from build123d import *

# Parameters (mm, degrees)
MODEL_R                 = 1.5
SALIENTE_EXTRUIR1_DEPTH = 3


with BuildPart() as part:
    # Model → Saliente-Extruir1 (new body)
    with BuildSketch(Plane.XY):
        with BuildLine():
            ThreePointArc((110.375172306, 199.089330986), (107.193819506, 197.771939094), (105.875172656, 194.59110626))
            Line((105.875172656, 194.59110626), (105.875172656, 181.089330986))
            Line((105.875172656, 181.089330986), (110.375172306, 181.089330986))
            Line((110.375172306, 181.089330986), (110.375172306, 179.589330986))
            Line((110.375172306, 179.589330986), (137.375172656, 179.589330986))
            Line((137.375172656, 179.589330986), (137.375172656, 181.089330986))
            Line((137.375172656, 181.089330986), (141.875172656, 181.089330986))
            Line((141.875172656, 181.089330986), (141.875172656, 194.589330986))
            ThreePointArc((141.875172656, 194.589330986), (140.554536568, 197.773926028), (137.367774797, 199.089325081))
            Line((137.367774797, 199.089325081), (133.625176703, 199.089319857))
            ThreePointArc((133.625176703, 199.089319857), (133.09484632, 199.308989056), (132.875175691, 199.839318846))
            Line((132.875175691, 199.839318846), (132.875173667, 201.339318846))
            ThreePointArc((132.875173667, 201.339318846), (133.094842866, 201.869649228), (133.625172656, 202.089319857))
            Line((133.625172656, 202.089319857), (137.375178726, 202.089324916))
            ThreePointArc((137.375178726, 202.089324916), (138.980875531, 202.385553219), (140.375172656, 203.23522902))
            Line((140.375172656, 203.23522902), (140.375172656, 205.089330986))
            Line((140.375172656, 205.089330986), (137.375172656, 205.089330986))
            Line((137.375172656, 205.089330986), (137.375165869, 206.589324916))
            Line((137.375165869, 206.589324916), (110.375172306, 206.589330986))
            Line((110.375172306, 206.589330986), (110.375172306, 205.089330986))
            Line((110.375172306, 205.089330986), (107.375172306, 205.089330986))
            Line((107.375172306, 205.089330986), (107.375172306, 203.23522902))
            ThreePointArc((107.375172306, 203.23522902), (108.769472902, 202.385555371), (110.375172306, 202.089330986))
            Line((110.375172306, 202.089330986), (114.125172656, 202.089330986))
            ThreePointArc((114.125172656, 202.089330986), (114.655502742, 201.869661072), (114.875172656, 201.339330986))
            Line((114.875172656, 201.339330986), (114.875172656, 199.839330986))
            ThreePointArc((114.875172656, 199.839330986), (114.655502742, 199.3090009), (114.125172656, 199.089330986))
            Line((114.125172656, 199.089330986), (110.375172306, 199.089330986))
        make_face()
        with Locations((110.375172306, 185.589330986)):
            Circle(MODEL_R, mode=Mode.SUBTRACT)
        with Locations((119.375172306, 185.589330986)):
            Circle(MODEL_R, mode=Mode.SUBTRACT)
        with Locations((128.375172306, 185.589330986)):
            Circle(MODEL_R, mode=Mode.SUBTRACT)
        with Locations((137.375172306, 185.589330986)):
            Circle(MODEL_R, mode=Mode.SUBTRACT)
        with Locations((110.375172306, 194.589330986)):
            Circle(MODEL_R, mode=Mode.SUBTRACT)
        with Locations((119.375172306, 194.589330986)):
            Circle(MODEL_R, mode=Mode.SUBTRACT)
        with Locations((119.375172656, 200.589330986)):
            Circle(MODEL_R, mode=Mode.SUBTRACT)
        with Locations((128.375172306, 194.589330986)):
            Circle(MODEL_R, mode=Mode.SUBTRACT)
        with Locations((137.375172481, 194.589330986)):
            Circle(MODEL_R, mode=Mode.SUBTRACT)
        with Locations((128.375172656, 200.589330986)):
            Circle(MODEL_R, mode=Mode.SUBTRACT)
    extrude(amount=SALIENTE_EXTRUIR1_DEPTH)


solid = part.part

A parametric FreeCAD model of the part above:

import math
import FreeCAD as App
import Part
import Sketcher
from FreeCAD import Vector

doc = App.newDocument("Part")
body = doc.addObject("PartDesign::Body", "Body")

sketch1 = doc.addObject("Sketcher::SketchObject", "Sketch")
body.addObject(sketch1)
sketch1.AttachmentSupport = (doc.XY_Plane, [""])
sketch1.MapMode = "FlatFace"
sketch1.addGeometry([
    Part.ArcOfCircle(Part.Circle(Vector(110.375172, 194.589331, 0), Vector(0, 0, 1), 4.5), math.radians(90), math.radians(179.977397)),
    Part.LineSegment(Vector(105.875173, 194.591106, 0), Vector(105.875173, 181.089331, 0)),
    Part.LineSegment(Vector(105.875173, 181.089331, 0), Vector(110.375172, 181.089331, 0)),
    Part.LineSegment(Vector(110.375172, 181.089331, 0), Vector(110.375172, 179.589331, 0)),
    Part.LineSegment(Vector(110.375172, 179.589331, 0), Vector(137.375173, 179.589331, 0)),
    Part.LineSegment(Vector(137.375173, 179.589331, 0), Vector(137.375173, 181.089331, 0)),
    Part.LineSegment(Vector(137.375173, 181.089331, 0), Vector(141.875173, 181.089331, 0)),
    Part.LineSegment(Vector(141.875173, 181.089331, 0), Vector(141.875173, 194.589331, 0)),
    Part.ArcOfCircle(Part.Circle(Vector(137.375172, 194.589331, 0), Vector(0, 0, 1), 4.5), math.radians(0), math.radians(90.09419)),
    Part.LineSegment(Vector(137.367775, 199.089325, 0), Vector(133.625177, 199.08932, 0)),
    Part.ArcOfCircle(Part.Circle(Vector(133.625176, 199.83932, 0), Vector(0, 0, 1), 0.75), math.radians(-179.999923), math.radians(-89.999923)),
    Part.LineSegment(Vector(132.875176, 199.839319, 0), Vector(132.875174, 201.339319, 0)),
    Part.ArcOfCircle(Part.Circle(Vector(133.625174, 201.33932, 0), Vector(0, 0, 1), 0.75), math.radians(90.000077), math.radians(180.000077)),
    Part.LineSegment(Vector(133.625173, 202.08932, 0), Vector(137.375179, 202.089325, 0)),
    Part.ArcOfCircle(Part.Circle(Vector(137.375166, 206.589325, 0), Vector(0, 0, 1), 4.5), math.radians(-89.999836), math.radians(-48.189569)),
    Part.LineSegment(Vector(140.375173, 203.235229, 0), Vector(140.375173, 205.089331, 0)),
    Part.LineSegment(Vector(140.375173, 205.089331, 0), Vector(137.375173, 205.089331, 0)),
    Part.LineSegment(Vector(137.375173, 205.089331, 0), Vector(137.375166, 206.589325, 0)),
    Part.LineSegment(Vector(137.375166, 206.589325, 0), Vector(110.375172, 206.589331, 0)),
    Part.LineSegment(Vector(110.375172, 206.589331, 0), Vector(110.375172, 205.089331, 0)),
    Part.LineSegment(Vector(110.375172, 205.089331, 0), Vector(107.375172, 205.089331, 0)),
    Part.LineSegment(Vector(107.375172, 205.089331, 0), Vector(107.375172, 203.235229, 0)),
    Part.ArcOfCircle(Part.Circle(Vector(110.375172, 206.589331, 0), Vector(0, 0, 1), 4.5), math.radians(-131.810315), math.radians(-90)),
    Part.LineSegment(Vector(110.375172, 202.089331, 0), Vector(114.125173, 202.089331, 0)),
    Part.ArcOfCircle(Part.Circle(Vector(114.125173, 201.339331, 0), Vector(0, 0, 1), 0.75), math.radians(0), math.radians(90)),
    Part.LineSegment(Vector(114.875173, 201.339331, 0), Vector(114.875173, 199.839331, 0)),
    Part.ArcOfCircle(Part.Circle(Vector(114.125173, 199.839331, 0), Vector(0, 0, 1), 0.75), math.radians(-90), math.radians(0)),
    Part.LineSegment(Vector(114.125173, 199.089331, 0), Vector(110.375172, 199.089331, 0)),
    Part.Circle(Vector(110.375172, 185.589331, 0), Vector(0, 0, 1), 1.5),
    Part.Circle(Vector(119.375172, 185.589331, 0), Vector(0, 0, 1), 1.5),
    Part.Circle(Vector(128.375172, 185.589331, 0), Vector(0, 0, 1), 1.5),
    Part.Circle(Vector(137.375172, 185.589331, 0), Vector(0, 0, 1), 1.5),
    Part.Circle(Vector(110.375172, 194.589331, 0), Vector(0, 0, 1), 1.5),
    Part.Circle(Vector(119.375172, 194.589331, 0), Vector(0, 0, 1), 1.5),
    Part.Circle(Vector(119.375173, 200.589331, 0), Vector(0, 0, 1), 1.5),
    Part.Circle(Vector(128.375172, 194.589331, 0), Vector(0, 0, 1), 1.5),
    Part.Circle(Vector(137.375172, 194.589331, 0), Vector(0, 0, 1), 1.5),
    Part.Circle(Vector(128.375173, 200.589331, 0), Vector(0, 0, 1), 1.5),
], False)
sketch1.addConstraint([
    Sketcher.Constraint("Coincident", 0, 2, 1, 1),
    Sketcher.Constraint("Coincident", 1, 2, 2, 1),
    Sketcher.Constraint("Coincident", 2, 2, 3, 1),
    Sketcher.Constraint("Coincident", 3, 2, 4, 1),
    Sketcher.Constraint("Coincident", 4, 2, 5, 1),
    Sketcher.Constraint("Coincident", 5, 2, 6, 1),
    Sketcher.Constraint("Coincident", 6, 2, 7, 1),
    Sketcher.Constraint("Tangent", 7, 2, 8, 1),
    Sketcher.Constraint("Coincident", 8, 2, 9, 1),
    Sketcher.Constraint("Tangent", 9, 2, 10, 2),
    Sketcher.Constraint("Tangent", 10, 1, 11, 1),
    Sketcher.Constraint("Tangent", 11, 2, 12, 2),
    Sketcher.Constraint("Tangent", 12, 1, 13, 1),
    Sketcher.Constraint("Tangent", 13, 2, 14, 1),
    Sketcher.Constraint("Coincident", 14, 2, 15, 1),
    Sketcher.Constraint("Coincident", 15, 2, 16, 1),
    Sketcher.Constraint("Coincident", 16, 2, 17, 1),
    Sketcher.Constraint("Coincident", 17, 2, 18, 1),
    Sketcher.Constraint("Coincident", 18, 2, 19, 1),
    Sketcher.Constraint("Coincident", 19, 2, 20, 1),
    Sketcher.Constraint("Coincident", 20, 2, 21, 1),
    Sketcher.Constraint("Coincident", 21, 2, 22, 1),
    Sketcher.Constraint("Tangent", 22, 2, 23, 1),
    Sketcher.Constraint("Tangent", 23, 2, 24, 2),
    Sketcher.Constraint("Tangent", 24, 1, 25, 1),
    Sketcher.Constraint("Tangent", 25, 2, 26, 2),
    Sketcher.Constraint("Tangent", 26, 1, 27, 1),
    Sketcher.Constraint("Tangent", 27, 2, 0, 1),
    Sketcher.Constraint("Vertical", 1),
    Sketcher.Constraint("Horizontal", 2),
    Sketcher.Constraint("Vertical", 3),
    Sketcher.Constraint("Horizontal", 4),
    Sketcher.Constraint("Vertical", 5),
    Sketcher.Constraint("Horizontal", 6),
    Sketcher.Constraint("Vertical", 7),
    Sketcher.Constraint("Vertical", 15),
    Sketcher.Constraint("Horizontal", 16),
    Sketcher.Constraint("Vertical", 19),
    Sketcher.Constraint("Horizontal", 20),
    Sketcher.Constraint("Vertical", 21),
    Sketcher.Constraint("Horizontal", 23),
    Sketcher.Constraint("Vertical", 25),
    Sketcher.Constraint("Horizontal", 27),
    Sketcher.Constraint("Coincident", 32, 3, 0, 3),
    Sketcher.Constraint("Coincident", 36, 3, 8, 3),
    Sketcher.Constraint("Coincident", 17, 2, 14, 3),
    Sketcher.Constraint("Coincident", 18, 2, 22, 3),
    Sketcher.Constraint("Equal", 0, 8),
    Sketcher.Constraint("Equal", 10, 12),
    Sketcher.Constraint("Equal", 8, 14),
    Sketcher.Constraint("Equal", 14, 22),
    Sketcher.Constraint("Equal", 12, 24),
    Sketcher.Constraint("Equal", 24, 26),
    Sketcher.Constraint("Equal", 28, 29),
    Sketcher.Constraint("Equal", 29, 30),
    Sketcher.Constraint("Equal", 30, 31),
    Sketcher.Constraint("Equal", 31, 32),
    Sketcher.Constraint("Equal", 32, 33),
    Sketcher.Constraint("Equal", 33, 34),
    Sketcher.Constraint("Equal", 34, 35),
    Sketcher.Constraint("Equal", 35, 36),
    Sketcher.Constraint("Equal", 36, 37),
    Sketcher.Constraint("Perpendicular", 9, 11),
    Sketcher.Constraint("Perpendicular", 11, 13),
    Sketcher.Constraint("Parallel", 13, 18),
    Sketcher.Constraint("Horizontal", 0, 3, 8, 3),
    Sketcher.Constraint("Horizontal", 28, 3, 29, 3),
    Sketcher.Constraint("Horizontal", 29, 3, 30, 3),
    Sketcher.Constraint("Horizontal", 30, 3, 31, 3),
    Sketcher.Constraint("Horizontal", 32, 3, 33, 3),
    Sketcher.Constraint("Horizontal", 33, 3, 35, 3),
    Sketcher.Constraint("Horizontal", 34, 3, 37, 3),
    Sketcher.Constraint("Horizontal", 2, 2, 5, 2),
    Sketcher.Constraint("Horizontal", 12, 3, 11, 2),
    Sketcher.Constraint("Horizontal", 16, 2, 19, 2),
    Sketcher.Constraint("Horizontal", 14, 2, 21, 2),
    Sketcher.Constraint("Vertical", 0, 3, 22, 3),
    Sketcher.Constraint("Vertical", 22, 3, 28, 3),
    Sketcher.Constraint("Vertical", 8, 3, 31, 3),
    Sketcher.Constraint("Vertical", 29, 3, 33, 3),
    Sketcher.Constraint("Vertical", 33, 3, 34, 3),
    Sketcher.Constraint("Vertical", 30, 3, 35, 3),
    Sketcher.Constraint("Vertical", 35, 3, 37, 3),
    Sketcher.Constraint("Vertical", 32, 3, 2, 2),
    Sketcher.Constraint("Vertical", 36, 3, 4, 2),
    Sketcher.Constraint("Vertical", 5, 2, 16, 2),
    Sketcher.Constraint("Equal", 16, 20),
    Sketcher.Constraint("Equal", 5, 19),
    Sketcher.Constraint("Equal", 19, 25),
    Sketcher.Constraint("Diameter", 28, 3.0),
    Sketcher.Constraint("Radius", 0, 4.5),
    Sketcher.Constraint("DistanceX", 4, 1, 4, 2, 27.0),
    Sketcher.Constraint("DistanceX", 16, 2, 16, 1, 3.0),
    Sketcher.Constraint("Radius", 10, 0.75),
    Sketcher.Constraint("DistanceY", 3, 2, 3, 1, 1.5),
    Sketcher.Constraint("DistanceY", 7, 1, 7, 2, 13.5),
    Sketcher.Constraint("DistanceY", 28, 3, 0, 3, 9.0),
    Sketcher.Constraint("DistanceX", 28, 3, 29, 3, 9.0),
    Sketcher.Constraint("DistanceX", 29, 3, 30, 3, 9.0),
    Sketcher.Constraint("DistanceY", 33, 3, 34, 3, 6.0),
    Sketcher.Constraint("DistanceX", 23, 1, 23, 2, 3.75),
    Sketcher.Constraint("DistanceX", 24, 3, 12, 3, 19.500001),
    Sketcher.Constraint("Distance", 9, 3.742598),
    Sketcher.Constraint("DistanceY", 1, 2, 1, 1, 13.501775),
    Sketcher.Constraint("DistanceY", -1, 1, 0, 3, 194.589331),
    Sketcher.Constraint("DistanceX", -1, 1, 13, 2, 137.375179),
])
pad1 = doc.addObject("PartDesign::Pad", "Pad")
body.addObject(pad1)
pad1.Profile = sketch1
pad1.Length = 3

doc.recompute()
